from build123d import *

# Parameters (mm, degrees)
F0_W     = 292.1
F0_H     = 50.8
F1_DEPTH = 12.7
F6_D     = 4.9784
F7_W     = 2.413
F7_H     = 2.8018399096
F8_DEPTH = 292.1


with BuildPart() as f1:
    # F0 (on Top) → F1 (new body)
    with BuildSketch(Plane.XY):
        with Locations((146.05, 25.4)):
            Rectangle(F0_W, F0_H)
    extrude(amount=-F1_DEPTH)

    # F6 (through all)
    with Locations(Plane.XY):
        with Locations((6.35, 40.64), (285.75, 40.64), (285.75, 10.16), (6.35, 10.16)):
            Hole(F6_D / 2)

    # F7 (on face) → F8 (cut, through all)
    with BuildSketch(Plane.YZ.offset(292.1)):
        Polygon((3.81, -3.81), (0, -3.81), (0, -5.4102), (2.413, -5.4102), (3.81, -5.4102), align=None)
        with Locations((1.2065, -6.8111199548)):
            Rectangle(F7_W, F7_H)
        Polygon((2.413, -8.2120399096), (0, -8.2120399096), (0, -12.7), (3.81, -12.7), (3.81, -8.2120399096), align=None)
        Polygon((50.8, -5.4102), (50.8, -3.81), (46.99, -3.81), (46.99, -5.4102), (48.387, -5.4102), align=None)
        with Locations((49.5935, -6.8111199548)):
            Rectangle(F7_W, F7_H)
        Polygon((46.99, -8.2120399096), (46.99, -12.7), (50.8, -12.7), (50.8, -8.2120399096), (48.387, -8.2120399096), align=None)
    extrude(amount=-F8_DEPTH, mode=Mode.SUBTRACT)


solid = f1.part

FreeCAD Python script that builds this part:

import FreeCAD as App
import Part
import Sketcher
Q = App.Units.Quantity

doc = App.newDocument("Part")
params = doc.addObject("Spreadsheet::Sheet", "Params")
for row, (alias, value) in enumerate([
    ("sketch1_height", "2 in"),
    ("sketch1_width", "11.5 in"),
    ("pad1_length", "0.5 in"),
    ("sketch2_diameter", "0.196 in"),
    ("hole_diameter", "0.196 in"),
    ("sketch3_width", "0.15 in"),
    ("sketch3_height", "0.35 in"),
    ("sketch3_width2", "0.055 in"),
    ("sketch3_height2", "0.063 in"),
], start=1):
    params.set(f"A{row}", alias)
    params.set(f"B{row}", "=" + value)
    params.setAlias(f"B{row}", alias)

body = doc.addObject("PartDesign::Body", "Body")

# Sketch on XY plane
sketch1 = body.newObject("Sketcher::SketchObject", "Sketch")
sketch1.AttachmentSupport = (doc.getObject("XY_Plane"), [""])
sketch1.MapMode = "FlatFace"
sketch1.addGeometry([
    Part.LineSegment(App.Vector(0, 50.8, 0), App.Vector(0, 0, 0)),
    Part.LineSegment(App.Vector(0, 0, 0), App.Vector(292.1, 0, 0)),
    Part.LineSegment(App.Vector(292.1, 0, 0), App.Vector(292.1, 50.8, 0)),
    Part.LineSegment(App.Vector(292.1, 50.8, 0), App.Vector(0, 50.8, 0)),
], False)
sketch1.addConstraint([
    Sketcher.Constraint("Coincident", 0, 2, 1, 1),
    Sketcher.Constraint("Coincident", 1, 2, 2, 1),
    Sketcher.Constraint("Coincident", 2, 2, 3, 1),
    Sketcher.Constraint("Coincident", 3, 2, 0, 1),
    Sketcher.Constraint("Vertical", 0),
    Sketcher.Constraint("Horizontal", 1),
    Sketcher.Constraint("Vertical", 2),
    Sketcher.Constraint("Horizontal", 3),
    Sketcher.Constraint("Coincident", 0, 2, -1, 1),
    Sketcher.Constraint("DistanceY", 0, 2, 0, 1, Q("2 in")),
    Sketcher.Constraint("DistanceX", 1, 1, 1, 2, Q("11.5 in")),
])
sketch1.setExpression("Constraints[9]", "Params.sketch1_height")
sketch1.setExpression("Constraints[10]", "Params.sketch1_width")
pad1 = body.newObject("PartDesign::Pad", "Pad")
pad1.Profile = sketch1
pad1.setExpression("Length", "Params.pad1_length")
pad1.Reversed = True

# Sketch on XY plane
sketch2 = body.newObject("Sketcher::SketchObject", "Sketch001")
sketch2.AttachmentSupport = (doc.getObject("XY_Plane"), [""])
sketch2.MapMode = "FlatFace"
sketch2.addGeometry([
    Part.Circle(App.Vector(6.35, 40.64, 0), App.Vector(0, 0, 1), 2.4892),
    Part.Circle(App.Vector(285.75, 40.64, 0), App.Vector(0, 0, 1), 2.4892),
    Part.Circle(App.Vector(285.75, 10.16, 0), App.Vector(0, 0, 1), 2.4892),
    Part.Circle(App.Vector(6.35, 10.16, 0), App.Vector(0, 0, 1), 2.4892),
], False)
sketch2.addConstraint([
    Sketcher.Constraint("Equal", 0, 1),
    Sketcher.Constraint("Equal", 1, 2),
    Sketcher.Constraint("Equal", 2, 3),
    Sketcher.Constraint("Horizontal", 0, 3, 1, 3),
    Sketcher.Constraint("Horizontal", 2, 3, 3, 3),
    Sketcher.Constraint("Vertical", 1, 3, 2, 3),
    Sketcher.Constraint("Vertical", 0, 3, 3, 3),
    Sketcher.Constraint("Diameter", 0, Q("0.196 in")),
    Sketcher.Constraint("DistanceX", 0, 3, 1, 3, Q("11 in")),
    Sketcher.Constraint("DistanceY", -1, 1, 0, 3, Q("1.6 in")),
    Sketcher.Constraint("DistanceY", -1, 1, 2, 3, Q("0.4 in")),
    Sketcher.Constraint("DistanceX", -1, 1, 0, 3, Q("0.25 in")),
])
sketch2.setExpression("Constraints[7]", "Params.sketch2_diameter")
doc.recompute()
hole = body.newObject("PartDesign::Hole", "Hole")
hole.Profile = sketch2
hole.ThreadType = "None"
hole.setExpression("Diameter", "Params.hole_diameter")
hole.DepthType = "ThroughAll"

# Sketch on YZ plane
sketch3 = body.newObject("Sketcher::SketchObject", "Sketch002")
sketch3.AttachmentSupport = (doc.getObject("YZ_Plane"), [""])
sketch3.MapMode = "FlatFace"
sketch3.AttachmentOffset = App.Placement(App.Vector(0, 0, 11.5 * 25.4), App.Rotation())
sketch3.addGeometry([
    Part.LineSegment(App.Vector(3.81, -3.81, 0), App.Vector(0, -3.81, 0)),  # 0
    Part.LineSegment(App.Vector(0, -3.81, 0), App.Vector(0, -12.7, 0)),  # 1
    Part.LineSegment(App.Vector(0, -12.7, 0), App.Vector(3.81, -12.7, 0)),  # 2
    Part.LineSegment(App.Vector(3.81, -12.7, 0), App.Vector(3.81, -8.21204, 0)),  # 3
    Part.LineSegment(App.Vector(3.81, -8.21204, 0), App.Vector(2.413, -8.21204, 0)),  # 4
    Part.LineSegment(App.Vector(2.413, -8.21204, 0), App.Vector(2.413, -5.4102, 0)),  # 5
    Part.LineSegment(App.Vector(2.413, -5.4102, 0), App.Vector(3.81, -5.4102, 0)),  # 6
    Part.LineSegment(App.Vector(3.81, -5.4102, 0), App.Vector(3.81, -3.81, 0)),  # 7
    Part.LineSegment(App.Vector(50.8, -3.81, 0), App.Vector(46.99, -3.81, 0)),  # 8
    Part.LineSegment(App.Vector(46.99, -3.81, 0), App.Vector(46.99, -5.4102, 0)),  # 9
    Part.LineSegment(App.Vector(46.99, -5.4102, 0), App.Vector(48.387, -5.4102, 0)),  # 10
    Part.LineSegment(App.Vector(48.387, -5.4102, 0), App.Vector(48.387, -8.21204, 0)),  # 11
    Part.LineSegment(App.Vector(48.387, -8.21204, 0), App.Vector(46.99, -8.21204, 0)),  # 12
    Part.LineSegment(App.Vector(46.99, -8.21204, 0), App.Vector(46.99, -12.7, 0)),  # 13
    Part.LineSegment(App.Vector(46.99, -12.7, 0), App.Vector(50.8, -12.7, 0)),  # 14
    Part.LineSegment(App.Vector(50.8, -12.7, 0), App.Vector(50.8, -3.81, 0)),  # 15
], False)
sketch3.addConstraint([
    Sketcher.Constraint("Coincident", 0, 2, 1, 1),
    Sketcher.Constraint("Coincident", 1, 2, 2, 1),
    Sketcher.Constraint("Coincident", 2, 2, 3, 1),
    Sketcher.Constraint("Coincident", 3, 2, 4, 1),
    Sketcher.Constraint("Coincident", 4, 2, 5, 1),
    Sketcher.Constraint("Coincident", 5, 2, 6, 1),
    Sketcher.Constraint("Coincident", 6, 2, 7, 1),
    Sketcher.Constraint("Coincident", 7, 2, 0, 1),
    Sketcher.Constraint("Coincident", 8, 2, 9, 1),
    Sketcher.Constraint("Coincident", 9, 2, 10, 1),
    Sketcher.Constraint("Coincident", 10, 2, 11, 1),
    Sketcher.Constraint("Coincident", 11, 2, 12, 1),
    Sketcher.Constraint("Coincident", 12, 2, 13, 1),
    Sketcher.Constraint("Coincident", 13, 2, 14, 1),
    Sketcher.Constraint("Coincident", 14, 2, 15, 1),
    Sketcher.Constraint("Coincident", 15, 2, 8, 1),
    Sketcher.Constraint("Horizontal", 0),
    Sketcher.Constraint("Vertical", 1),
    Sketcher.Constraint("Horizontal", 2),
    Sketcher.Constraint("Vertical", 3),
    Sketcher.Constraint("Horizontal", 4),
    Sketcher.Constraint("Vertical", 5),
    Sketcher.Constraint("Horizontal", 6),
    Sketcher.Constraint("Vertical", 7),
    Sketcher.Constraint("Horizontal", 8),
    Sketcher.Constraint("Vertical", 9),
    Sketcher.Constraint("Horizontal", 10),
    Sketcher.Constraint("Vertical", 11),
    Sketcher.Constraint("Horizontal", 12),
    Sketcher.Constraint("Vertical", 13),
    Sketcher.Constraint("Horizontal", 14),
    Sketcher.Constraint("Vertical", 15),
    Sketcher.Constraint("PointOnObject", 0, 2, -2),
    Sketcher.Constraint("Horizontal", 7, 2, 8, 2),
    Sketcher.Constraint("Horizontal", 6, 2, 9, 2),
    Sketcher.Constraint("Horizontal", 4, 2, 11, 2),
    Sketcher.Constraint("Horizontal", 2, 2, 13, 2),
    Sketcher.Constraint("Vertical", 3, 2, 6, 2),
    Sketcher.Constraint("Vertical", 9, 2, 12, 2),
    Sketcher.Constraint("Equal", 2, 8),
    Sketcher.Constraint("Equal", 6, 10),
    Sketcher.Constraint("DistanceX", -1, 1, 14, 2, Q("2 in")),
    Sketcher.Constraint("DistanceX", 0, 2, 0, 1, Q("0.15 in")),
    Sketcher.Constraint("DistanceY", 1, 2, 1, 1, Q("0.35 in")),
    Sketcher.Constraint("DistanceY", 1, 2, -1, 1, Q("0.5 in")),
    Sketcher.Constraint("DistanceX", 4, 2, 4, 1, Q("0.055 in")),
    Sketcher.Constraint("DistanceY", 7, 1, 7, 2, Q("0.063 in")),
    Sketcher.Constraint("DistanceY", 3, 1, 3, 2, Q("4.48796 mm")),
])
sketch3.setExpression("Constraints[42]", "Params.sketch3_width")
sketch3.setExpression("Constraints[43]", "Params.sketch3_height")
sketch3.setExpression("Constraints[45]", "Params.sketch3_width2")
sketch3.setExpression("Constraints[46]", "Params.sketch3_height2")
pocket1 = body.newObject("PartDesign::Pocket", "Pocket")
pocket1.Profile = sketch3
pocket1.Type = "ThroughAll"

doc.recompute()
